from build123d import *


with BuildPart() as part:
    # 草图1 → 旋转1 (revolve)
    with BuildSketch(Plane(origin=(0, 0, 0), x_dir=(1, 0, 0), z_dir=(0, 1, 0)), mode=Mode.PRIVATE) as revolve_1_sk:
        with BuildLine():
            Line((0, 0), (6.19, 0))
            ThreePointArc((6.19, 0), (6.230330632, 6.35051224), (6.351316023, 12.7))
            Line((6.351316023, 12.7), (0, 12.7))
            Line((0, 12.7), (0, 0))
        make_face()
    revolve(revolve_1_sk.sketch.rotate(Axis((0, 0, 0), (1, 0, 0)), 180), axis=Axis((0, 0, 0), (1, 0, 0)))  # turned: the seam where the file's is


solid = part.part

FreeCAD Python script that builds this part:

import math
import FreeCAD as App
import Part
import Sketcher
from FreeCAD import Vector
Q = App.Units.Quantity

doc = App.newDocument("Part")
body = doc.addObject("PartDesign::Body", "Body")

# Sketch on XZ plane
sketch1 = body.newObject("Sketcher::SketchObject", "Sketch")
sketch1.AttachmentSupport = (doc.getObject("XZ_Plane"), [""])
sketch1.MapMode = "FlatFace"
sketch1.addGeometry([
    Part.LineSegment(Vector(0, 0, 0), Vector(6, 0, 0)),
    Part.ArcOfCircle(Part.Circle(Vector(506, 0, 0), Vector(0, 0, 1), 500), math.radians(180), math.radians(181.46)),
    Part.LineSegment(Vector(6, -13, 0), Vector(0, -13, 0)),
    Part.LineSegment(Vector(0, -13, 0), Vector(0, 0, 0)),
], False)
sketch1.addConstraint([
    Sketcher.Constraint("Coincident", 0, 2, 1, 1),
    Sketcher.Constraint("Coincident", 1, 2, 2, 1),
    Sketcher.Constraint("Coincident", 2, 2, 3, 1),
    Sketcher.Constraint("Coincident", 3, 2, 0, 1),
    Sketcher.Constraint("Horizontal", 0),
    Sketcher.Constraint("Horizontal", 2),
    Sketcher.Constraint("Vertical", 3),
    Sketcher.Constraint("Coincident", 3, 2, -1, 1),
    Sketcher.Constraint("PointOnObject", 1, 3, -1),
    Sketcher.Constraint("DistanceY", 3, 1, 3, 2, Q("0.5 in")),
    Sketcher.Constraint("DistanceX", 0, 1, 0, 2, 6.19),
    Sketcher.Constraint("Radius", 1, 499.999996),
])
revolution = body.newObject("PartDesign::Revolution", "Revolution")
revolution.Profile = sketch1
revolution.ReferenceAxis = (sketch1, ["H_Axis"])
revolution.Angle = 360

doc.recompute()
